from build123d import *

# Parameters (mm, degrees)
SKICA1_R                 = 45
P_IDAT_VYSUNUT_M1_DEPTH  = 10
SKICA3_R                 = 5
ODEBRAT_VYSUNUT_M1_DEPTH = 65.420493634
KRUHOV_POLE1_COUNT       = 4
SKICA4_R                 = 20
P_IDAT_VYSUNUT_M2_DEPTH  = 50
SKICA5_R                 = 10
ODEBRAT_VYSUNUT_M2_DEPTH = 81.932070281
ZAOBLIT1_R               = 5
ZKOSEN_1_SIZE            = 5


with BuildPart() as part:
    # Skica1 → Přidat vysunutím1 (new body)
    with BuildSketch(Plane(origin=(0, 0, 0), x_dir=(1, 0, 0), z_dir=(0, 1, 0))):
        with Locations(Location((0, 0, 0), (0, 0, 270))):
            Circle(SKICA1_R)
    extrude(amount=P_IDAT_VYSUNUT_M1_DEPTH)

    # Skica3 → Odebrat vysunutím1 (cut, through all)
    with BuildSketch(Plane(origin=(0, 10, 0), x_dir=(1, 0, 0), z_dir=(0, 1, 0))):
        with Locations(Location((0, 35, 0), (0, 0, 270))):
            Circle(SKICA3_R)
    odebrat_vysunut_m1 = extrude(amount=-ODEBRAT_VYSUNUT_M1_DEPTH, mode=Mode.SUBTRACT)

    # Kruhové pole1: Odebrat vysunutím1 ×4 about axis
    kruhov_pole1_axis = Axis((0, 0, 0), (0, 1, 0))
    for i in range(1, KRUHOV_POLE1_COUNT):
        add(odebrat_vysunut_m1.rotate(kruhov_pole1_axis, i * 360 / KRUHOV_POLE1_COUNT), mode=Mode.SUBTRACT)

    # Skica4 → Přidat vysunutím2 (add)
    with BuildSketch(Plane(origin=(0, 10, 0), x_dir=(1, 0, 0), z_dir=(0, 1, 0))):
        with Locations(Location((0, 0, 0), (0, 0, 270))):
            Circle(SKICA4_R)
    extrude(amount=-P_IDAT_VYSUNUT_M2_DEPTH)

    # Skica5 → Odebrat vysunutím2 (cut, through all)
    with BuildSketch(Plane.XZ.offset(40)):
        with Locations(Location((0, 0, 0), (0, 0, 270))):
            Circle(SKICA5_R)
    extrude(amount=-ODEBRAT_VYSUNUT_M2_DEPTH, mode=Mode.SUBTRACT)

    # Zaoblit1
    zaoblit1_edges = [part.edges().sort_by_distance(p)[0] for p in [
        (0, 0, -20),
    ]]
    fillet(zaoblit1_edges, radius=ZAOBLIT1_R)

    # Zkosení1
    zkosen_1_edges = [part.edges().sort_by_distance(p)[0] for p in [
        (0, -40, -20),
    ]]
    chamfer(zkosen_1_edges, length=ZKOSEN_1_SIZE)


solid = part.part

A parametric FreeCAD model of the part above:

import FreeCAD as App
import Part
import Sketcher


def edges_at(feature, points):
    """Names of the edges that pass closest to the given points."""
    edges = feature.Shape.Edges
    near = lambda p: min(range(len(edges)), key=lambda i: edges[i].distToShape(Part.Vertex(*p))[0])
    return sorted({f"Edge{near(p) + 1}" for p in points})

doc = App.newDocument("Part")
body = doc.addObject("PartDesign::Body", "Body")

sketch1 = doc.addObject("Sketcher::SketchObject", "Sketch")
body.addObject(sketch1)
sketch1.AttachmentSupport = (doc.XZ_Plane, [""])
sketch1.MapMode = "FlatFace"
sketch1.addGeometry(Part.Circle(App.Vector(0, 0, 0), App.Vector(0, 0, 1), 45), False)
sketch1.addConstraint([
    Sketcher.Constraint("Coincident", 0, 3, -1, 1),
    Sketcher.Constraint("Diameter", 0, 90.0),
])
pad1 = doc.addObject("PartDesign::Pad", "Pad")
body.addObject(pad1)
pad1.Profile = sketch1
pad1.Length = 10
pad1.Reversed = True

sketch2 = doc.addObject("Sketcher::SketchObject", "Sketch001")
body.addObject(sketch2)
sketch2.AttachmentSupport = (doc.XZ_Plane, [""])
sketch2.MapMode = "FlatFace"
sketch2.AttachmentOffset = App.Placement(App.Vector(0, 0, -10), App.Rotation())
sketch2.addGeometry(Part.Circle(App.Vector(0, -35, 0), App.Vector(0, 0, 1), 5), False)
sketch2.addConstraint([
    Sketcher.Constraint("PointOnObject", 0, 3, -2),
    Sketcher.Constraint("Diameter", 0, 10.0),
    Sketcher.Constraint("DistanceY", 0, 3, -1, 1, 35.0),
])
pocket1 = doc.addObject("PartDesign::Pocket", "Pocket")
body.addObject(pocket1)
pocket1.Profile = sketch2
pocket1.Type = "ThroughAll"
pocket1.Reversed = True
doc.recompute()

polarpattern = doc.addObject("PartDesign::PolarPattern", "PolarPattern")
body.addObject(polarpattern)
polarpattern.Originals = [pocket1]
polarpattern.Axis = (doc.Y_Axis, [""])
polarpattern.Angle = 360
polarpattern.Occurrences = 4
body.Tip = polarpattern

sketch3 = doc.addObject("Sketcher::SketchObject", "Sketch002")
body.addObject(sketch3)
sketch3.AttachmentSupport = (doc.XZ_Plane, [""])
sketch3.MapMode = "FlatFace"
sketch3.AttachmentOffset = App.Placement(App.Vector(0, 0, -10), App.Rotation())
sketch3.addGeometry(Part.Circle(App.Vector(0, 0, 0), App.Vector(0, 0, 1), 20), False)
sketch3.addConstraint([
    Sketcher.Constraint("Coincident", 0, 3, -1, 1),
    Sketcher.Constraint("Diameter", 0, 40.0),
])
pad2 = doc.addObject("PartDesign::Pad", "Pad001")
body.addObject(pad2)
pad2.Profile = sketch3
pad2.Length = 50

sketch4 = doc.addObject("Sketcher::SketchObject", "Sketch003")
body.addObject(sketch4)
sketch4.AttachmentSupport = (doc.XZ_Plane, [""])
sketch4.MapMode = "FlatFace"
sketch4.AttachmentOffset = App.Placement(App.Vector(0, 0, 40), App.Rotation())
sketch4.addGeometry(Part.Circle(App.Vector(0, 0, 0), App.Vector(0, 0, 1), 10), False)
sketch4.addConstraint([
    Sketcher.Constraint("Coincident", 0, 3, -1, 1),
    Sketcher.Constraint("Diameter", 0, 20.0),
])
pocket2 = doc.addObject("PartDesign::Pocket", "Pocket001")
body.addObject(pocket2)
pocket2.Profile = sketch4
pocket2.Type = "ThroughAll"
doc.recompute()

fillet = doc.addObject("PartDesign::Fillet", "Fillet")
body.addObject(fillet)
fillet.Base = (pocket2, edges_at(pocket2, [(0, 0, -20)]))
fillet.Radius = 5
doc.recompute()

chamfer = doc.addObject("PartDesign::Chamfer", "Chamfer")
body.addObject(chamfer)
chamfer.Base = (fillet, edges_at(fillet, [(0, -40, -20)]))
chamfer.Size = 5

doc.recompute()
